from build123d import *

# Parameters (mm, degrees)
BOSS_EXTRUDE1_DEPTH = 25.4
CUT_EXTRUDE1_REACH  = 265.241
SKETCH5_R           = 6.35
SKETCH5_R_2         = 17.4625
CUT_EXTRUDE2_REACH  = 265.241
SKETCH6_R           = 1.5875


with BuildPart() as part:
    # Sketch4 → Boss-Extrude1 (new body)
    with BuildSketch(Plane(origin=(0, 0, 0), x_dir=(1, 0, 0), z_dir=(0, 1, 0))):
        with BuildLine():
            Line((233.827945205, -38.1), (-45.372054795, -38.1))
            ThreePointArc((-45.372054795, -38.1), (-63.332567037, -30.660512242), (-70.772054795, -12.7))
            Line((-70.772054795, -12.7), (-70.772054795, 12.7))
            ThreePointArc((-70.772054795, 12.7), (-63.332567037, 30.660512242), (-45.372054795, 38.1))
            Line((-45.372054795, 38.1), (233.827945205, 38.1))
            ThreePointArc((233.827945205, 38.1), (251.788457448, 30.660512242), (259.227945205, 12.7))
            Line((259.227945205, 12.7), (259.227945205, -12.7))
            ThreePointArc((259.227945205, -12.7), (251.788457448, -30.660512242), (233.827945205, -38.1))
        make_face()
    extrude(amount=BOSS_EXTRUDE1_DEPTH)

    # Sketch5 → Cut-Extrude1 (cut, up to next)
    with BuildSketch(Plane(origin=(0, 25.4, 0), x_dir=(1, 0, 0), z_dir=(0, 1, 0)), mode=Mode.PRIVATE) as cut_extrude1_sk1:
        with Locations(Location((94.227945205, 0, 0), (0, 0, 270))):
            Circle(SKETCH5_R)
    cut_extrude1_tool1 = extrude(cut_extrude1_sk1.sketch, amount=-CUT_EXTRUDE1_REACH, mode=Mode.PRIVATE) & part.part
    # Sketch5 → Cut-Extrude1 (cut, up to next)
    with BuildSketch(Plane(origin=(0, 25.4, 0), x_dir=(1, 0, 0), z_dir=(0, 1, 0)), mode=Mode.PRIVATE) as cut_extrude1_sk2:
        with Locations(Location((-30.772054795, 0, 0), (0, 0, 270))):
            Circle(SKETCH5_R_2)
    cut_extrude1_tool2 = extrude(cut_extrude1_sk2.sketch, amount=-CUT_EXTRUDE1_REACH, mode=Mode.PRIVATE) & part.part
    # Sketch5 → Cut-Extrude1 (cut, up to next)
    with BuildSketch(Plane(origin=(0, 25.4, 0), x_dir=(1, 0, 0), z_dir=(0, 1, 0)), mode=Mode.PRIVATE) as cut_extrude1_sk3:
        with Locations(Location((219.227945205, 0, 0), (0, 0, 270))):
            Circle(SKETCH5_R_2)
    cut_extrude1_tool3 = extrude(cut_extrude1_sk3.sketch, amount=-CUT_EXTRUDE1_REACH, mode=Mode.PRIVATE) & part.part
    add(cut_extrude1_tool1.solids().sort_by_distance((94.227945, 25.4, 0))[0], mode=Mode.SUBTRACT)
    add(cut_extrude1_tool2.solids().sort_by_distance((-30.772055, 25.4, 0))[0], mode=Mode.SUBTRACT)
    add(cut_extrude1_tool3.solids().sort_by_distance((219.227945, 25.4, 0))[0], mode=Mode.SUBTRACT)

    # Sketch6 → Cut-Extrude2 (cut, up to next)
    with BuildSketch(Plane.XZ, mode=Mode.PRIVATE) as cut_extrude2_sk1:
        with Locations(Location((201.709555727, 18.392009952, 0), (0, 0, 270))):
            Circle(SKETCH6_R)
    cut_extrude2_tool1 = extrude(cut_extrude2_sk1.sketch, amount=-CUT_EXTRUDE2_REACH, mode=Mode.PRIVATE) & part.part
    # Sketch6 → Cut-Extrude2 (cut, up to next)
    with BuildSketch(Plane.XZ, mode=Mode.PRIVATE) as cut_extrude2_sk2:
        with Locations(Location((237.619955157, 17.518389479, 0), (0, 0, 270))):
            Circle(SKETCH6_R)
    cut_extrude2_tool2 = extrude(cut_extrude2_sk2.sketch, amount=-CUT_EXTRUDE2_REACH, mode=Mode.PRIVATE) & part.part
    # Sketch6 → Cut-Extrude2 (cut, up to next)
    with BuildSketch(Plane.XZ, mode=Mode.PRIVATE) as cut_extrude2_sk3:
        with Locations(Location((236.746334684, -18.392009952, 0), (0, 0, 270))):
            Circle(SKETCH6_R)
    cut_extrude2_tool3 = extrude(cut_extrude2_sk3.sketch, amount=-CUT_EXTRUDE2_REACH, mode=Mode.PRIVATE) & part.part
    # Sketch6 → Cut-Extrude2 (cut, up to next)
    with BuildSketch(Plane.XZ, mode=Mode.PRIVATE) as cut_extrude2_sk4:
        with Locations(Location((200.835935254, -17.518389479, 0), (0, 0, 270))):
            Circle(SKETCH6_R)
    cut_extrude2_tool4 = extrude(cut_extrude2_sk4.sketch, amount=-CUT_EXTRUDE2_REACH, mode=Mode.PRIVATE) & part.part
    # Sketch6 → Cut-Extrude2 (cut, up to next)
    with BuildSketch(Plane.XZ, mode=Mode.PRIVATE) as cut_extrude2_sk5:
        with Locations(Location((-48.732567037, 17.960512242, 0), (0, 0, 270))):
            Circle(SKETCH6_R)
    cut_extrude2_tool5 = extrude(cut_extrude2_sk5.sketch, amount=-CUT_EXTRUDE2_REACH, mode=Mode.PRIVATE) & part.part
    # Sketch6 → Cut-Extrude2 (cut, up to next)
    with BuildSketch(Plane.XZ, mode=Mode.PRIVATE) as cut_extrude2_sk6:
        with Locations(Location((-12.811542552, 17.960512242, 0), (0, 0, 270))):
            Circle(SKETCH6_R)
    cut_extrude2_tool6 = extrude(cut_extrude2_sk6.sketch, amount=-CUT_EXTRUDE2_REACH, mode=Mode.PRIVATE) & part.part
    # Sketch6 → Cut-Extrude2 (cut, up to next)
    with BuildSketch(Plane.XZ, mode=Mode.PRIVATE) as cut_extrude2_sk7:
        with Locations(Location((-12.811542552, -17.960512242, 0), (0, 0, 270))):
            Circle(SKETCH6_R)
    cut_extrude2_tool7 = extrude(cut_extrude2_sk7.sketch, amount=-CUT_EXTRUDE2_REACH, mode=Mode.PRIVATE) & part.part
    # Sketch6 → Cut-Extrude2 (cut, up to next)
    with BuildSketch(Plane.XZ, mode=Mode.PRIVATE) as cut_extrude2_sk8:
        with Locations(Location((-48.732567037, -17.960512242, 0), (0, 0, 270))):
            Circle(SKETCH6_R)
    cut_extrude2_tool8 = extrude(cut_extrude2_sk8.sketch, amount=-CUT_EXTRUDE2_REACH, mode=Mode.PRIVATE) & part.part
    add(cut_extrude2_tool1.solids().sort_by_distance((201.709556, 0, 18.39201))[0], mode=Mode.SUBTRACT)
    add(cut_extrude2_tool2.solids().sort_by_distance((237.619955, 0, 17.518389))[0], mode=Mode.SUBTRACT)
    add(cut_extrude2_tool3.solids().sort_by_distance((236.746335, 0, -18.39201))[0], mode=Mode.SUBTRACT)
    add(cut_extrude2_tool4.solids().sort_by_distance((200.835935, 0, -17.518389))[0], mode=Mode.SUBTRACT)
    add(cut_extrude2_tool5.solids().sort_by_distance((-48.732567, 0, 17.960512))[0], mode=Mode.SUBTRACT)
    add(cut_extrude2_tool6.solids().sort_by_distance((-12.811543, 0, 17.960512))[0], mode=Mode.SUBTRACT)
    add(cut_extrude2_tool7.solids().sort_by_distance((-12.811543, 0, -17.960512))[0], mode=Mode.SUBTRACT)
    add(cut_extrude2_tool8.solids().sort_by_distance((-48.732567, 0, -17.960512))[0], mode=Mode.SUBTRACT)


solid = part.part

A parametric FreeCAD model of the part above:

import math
import FreeCAD as App
import Part
import Sketcher
Q = App.Units.Quantity

doc = App.newDocument("Part")
body = doc.addObject("PartDesign::Body", "Body")

sketch1 = doc.addObject("Sketcher::SketchObject", "Sketch")
body.addObject(sketch1)
sketch1.AttachmentSupport = (doc.XZ_Plane, [""])
sketch1.MapMode = "FlatFace"
sketch1.addGeometry([
    Part.LineSegment(App.Vector(-45, 38, 0), App.Vector(234, 38, 0)),
    Part.ArcOfCircle(Part.Circle(App.Vector(234, 13, 0), App.Vector(0, 0, 1), 25), math.radians(0), math.radians(90)),
    Part.LineSegment(App.Vector(259, 13, 0), App.Vector(259, -13, 0)),
    Part.ArcOfCircle(Part.Circle(App.Vector(234, -13, 0), App.Vector(0, 0, 1), 25), math.radians(-90), math.radians(0)),
    Part.LineSegment(App.Vector(234, -38, 0), App.Vector(-45, -38, 0)),
    Part.ArcOfCircle(Part.Circle(App.Vector(-45, -13, 0), App.Vector(0, 0, 1), 25), math.radians(180), math.radians(270)),
    Part.LineSegment(App.Vector(-71, -13, 0), App.Vector(-71, 13, 0)),
    Part.ArcOfCircle(Part.Circle(App.Vector(-45, 13, 0), App.Vector(0, 0, 1), 25), math.radians(90), math.radians(180)),
], False)
sketch1.addConstraint([
    Sketcher.Constraint("Tangent", 0, 2, 1, 2),
    Sketcher.Constraint("Tangent", 1, 1, 2, 1),
    Sketcher.Constraint("Tangent", 2, 2, 3, 2),
    Sketcher.Constraint("Tangent", 3, 1, 4, 1),
    Sketcher.Constraint("Tangent", 4, 2, 5, 2),
    Sketcher.Constraint("Tangent", 5, 1, 6, 1),
    Sketcher.Constraint("Tangent", 6, 2, 7, 2),
    Sketcher.Constraint("Tangent", 7, 1, 0, 1),
    Sketcher.Constraint("Horizontal", 0),
    Sketcher.Constraint("Vertical", 2),
    Sketcher.Constraint("Horizontal", 4),
    Sketcher.Constraint("Vertical", 6),
    Sketcher.Constraint("Equal", 1, 3),
    Sketcher.Constraint("Equal", 3, 5),
    Sketcher.Constraint("Equal", 5, 7),
    Sketcher.Constraint("Radius", 1, Q("1 in")),
    Sketcher.Constraint("DistanceY", 2, 2, 2, 1, Q("1 in")),
    Sketcher.Constraint("DistanceY", -1, 1, 1, 3, Q("0.5 in")),
    Sketcher.Constraint("DistanceX", 0, 1, 0, 2, 279.2),
    Sketcher.Constraint("DistanceX", -1, 1, 1, 3, 233.827945),
])
pad1 = doc.addObject("PartDesign::Pad", "Pad")
body.addObject(pad1)
pad1.Profile = sketch1
pad1.Length = Q("1 in")
pad1.Reversed = True

sketch2 = doc.addObject("Sketcher::SketchObject", "Sketch001")
body.addObject(sketch2)
sketch2.AttachmentSupport = (doc.XZ_Plane, [""])
sketch2.MapMode = "FlatFace"
sketch2.AttachmentOffset = App.Placement(App.Vector(0, 0, -1 * 25.4), App.Rotation())
sketch2.addGeometry(Part.Circle(App.Vector(94, 0, 0), App.Vector(0, 0, 1), 6), False)
sketch2.addConstraint([
    Sketcher.Constraint("PointOnObject", 0, 3, -1),
    Sketcher.Constraint("Diameter", 0, Q("0.5 in")),
    Sketcher.Constraint("DistanceX", -1, 1, 0, 3, 94.227945),
])
pocket1 = doc.addObject("PartDesign::Pocket", "Pocket")
body.addObject(pocket1)
pocket1.Profile = sketch2
pocket1.Type = "UpToFirst"
pocket1.Reversed = True

sketch3 = doc.addObject("Sketcher::SketchObject", "Sketch002")
body.addObject(sketch3)
sketch3.AttachmentSupport = (doc.XZ_Plane, [""])
sketch3.MapMode = "FlatFace"
sketch3.AttachmentOffset = App.Placement(App.Vector(0, 0, -1 * 25.4), App.Rotation())
sketch3.addGeometry(Part.Circle(App.Vector(-31, 0, 0), App.Vector(0, 0, 1), 17), False)
sketch3.addConstraint([
    Sketcher.Constraint("PointOnObject", 0, 3, -1),
    Sketcher.Constraint("Diameter", 0, Q("1.375 in")),
    Sketcher.Constraint("DistanceX", 0, 3, -1, 1, 30.772055),
])
pocket2 = doc.addObject("PartDesign::Pocket", "Pocket001")
body.addObject(pocket2)
pocket2.Profile = sketch3
pocket2.Type = "UpToFirst"
pocket2.Reversed = True

sketch4 = doc.addObject("Sketcher::SketchObject", "Sketch003")
body.addObject(sketch4)
sketch4.AttachmentSupport = (doc.XZ_Plane, [""])
sketch4.MapMode = "FlatFace"
sketch4.AttachmentOffset = App.Placement(App.Vector(0, 0, -1 * 25.4), App.Rotation())
sketch4.addGeometry(Part.Circle(App.Vector(219, 0, 0), App.Vector(0, 0, 1), 17), False)
sketch4.addConstraint([
    Sketcher.Constraint("PointOnObject", 0, 3, -1),
    Sketcher.Constraint("Diameter", 0, Q("1.375 in")),
    Sketcher.Constraint("DistanceX", -1, 1, 0, 3, 219.227945),
])
pocket3 = doc.addObject("PartDesign::Pocket", "Pocket002")
body.addObject(pocket3)
pocket3.Profile = sketch4
pocket3.Type = "UpToFirst"
pocket3.Reversed = True

sketch5 = doc.addObject("Sketcher::SketchObject", "Sketch004")
body.addObject(sketch5)
sketch5.AttachmentSupport = (doc.XZ_Plane, [""])
sketch5.MapMode = "FlatFace"
sketch5.addGeometry(Part.Circle(App.Vector(201.7, 18.4, 0), App.Vector(0, 0, 1), 1.6), False)
sketch5.addConstraint([
    Sketcher.Constraint("Diameter", 0, Q("0.125 in")),
    Sketcher.Constraint("DistanceY", -1, 1, 0, 3, 18.39201),
    Sketcher.Constraint("DistanceX", -1, 1, 0, 3, 201.709556),
])
pocket4 = doc.addObject("PartDesign::Pocket", "Pocket003")
body.addObject(pocket4)
pocket4.Profile = sketch5
pocket4.Type = "UpToFirst"

sketch6 = doc.addObject("Sketcher::SketchObject", "Sketch005")
body.addObject(sketch6)
sketch6.AttachmentSupport = (doc.XZ_Plane, [""])
sketch6.MapMode = "FlatFace"
sketch6.addGeometry(Part.Circle(App.Vector(237.6, 17.5, 0), App.Vector(0, 0, 1), 1.6), False)
sketch6.addConstraint([
    Sketcher.Constraint("Diameter", 0, Q("0.125 in")),
    Sketcher.Constraint("DistanceY", -1, 1, 0, 3, 17.518389),
    Sketcher.Constraint("DistanceX", -1, 1, 0, 3, 237.619955),
])
pocket5 = doc.addObject("PartDesign::Pocket", "Pocket004")
body.addObject(pocket5)
pocket5.Profile = sketch6
pocket5.Type = "UpToFirst"

sketch7 = doc.addObject("Sketcher::SketchObject", "Sketch006")
body.addObject(sketch7)
sketch7.AttachmentSupport = (doc.XZ_Plane, [""])
sketch7.MapMode = "FlatFace"
sketch7.addGeometry(Part.Circle(App.Vector(236.7, -18.4, 0), App.Vector(0, 0, 1), 1.6), False)
sketch7.addConstraint([
    Sketcher.Constraint("Diameter", 0, Q("0.125 in")),
    Sketcher.Constraint("DistanceY", 0, 3, -1, 1, 18.39201),
    Sketcher.Constraint("DistanceX", -1, 1, 0, 3, 236.746335),
])
pocket6 = doc.addObject("PartDesign::Pocket", "Pocket005")
body.addObject(pocket6)
pocket6.Profile = sketch7
pocket6.Type = "UpToFirst"

sketch8 = doc.addObject("Sketcher::SketchObject", "Sketch007")
body.addObject(sketch8)
sketch8.AttachmentSupport = (doc.XZ_Plane, [""])
sketch8.MapMode = "FlatFace"
sketch8.addGeometry(Part.Circle(App.Vector(200.8, -17.5, 0), App.Vector(0, 0, 1), 1.6), False)
sketch8.addConstraint([
    Sketcher.Constraint("Diameter", 0, Q("0.125 in")),
    Sketcher.Constraint("DistanceY", 0, 3, -1, 1, 17.518389),
    Sketcher.Constraint("DistanceX", -1, 1, 0, 3, 200.835935),
])
pocket7 = doc.addObject("PartDesign::Pocket", "Pocket006")
body.addObject(pocket7)
pocket7.Profile = sketch8
pocket7.Type = "UpToFirst"

sketch9 = doc.addObject("Sketcher::SketchObject", "Sketch008")
body.addObject(sketch9)
sketch9.AttachmentSupport = (doc.XZ_Plane, [""])
sketch9.MapMode = "FlatFace"
sketch9.addGeometry(Part.Circle(App.Vector(-48.7, 18, 0), App.Vector(0, 0, 1), 1.6), False)
sketch9.addConstraint([
    Sketcher.Constraint("Diameter", 0, Q("0.125 in")),
    Sketcher.Constraint("DistanceX", 0, 3, -1, 1, 48.732567),
    Sketcher.Constraint("DistanceY", -1, 1, 0, 3, 17.960512),
])
pocket8 = doc.addObject("PartDesign::Pocket", "Pocket007")
body.addObject(pocket8)
pocket8.Profile = sketch9
pocket8.Type = "UpToFirst"

sketch10 = doc.addObject("Sketcher::SketchObject", "Sketch009")
body.addObject(sketch10)
sketch10.AttachmentSupport = (doc.XZ_Plane, [""])
sketch10.MapMode = "FlatFace"
sketch10.addGeometry(Part.Circle(App.Vector(-12.8, 18, 0), App.Vector(0, 0, 1), 1.6), False)
sketch10.addConstraint([
    Sketcher.Constraint("Diameter", 0, Q("0.125 in")),
    Sketcher.Constraint("DistanceX", 0, 3, -1, 1, 12.811543),
    Sketcher.Constraint("DistanceY", -1, 1, 0, 3, 17.960512),
])
pocket9 = doc.addObject("PartDesign::Pocket", "Pocket008")
body.addObject(pocket9)
pocket9.Profile = sketch10
pocket9.Type = "UpToFirst"

sketch11 = doc.addObject("Sketcher::SketchObject", "Sketch010")
body.addObject(sketch11)
sketch11.AttachmentSupport = (doc.XZ_Plane, [""])
sketch11.MapMode = "FlatFace"
sketch11.addGeometry(Part.Circle(App.Vector(-12.8, -18, 0), App.Vector(0, 0, 1), 1.6), False)
sketch11.addConstraint([
    Sketcher.Constraint("Diameter", 0, Q("0.125 in")),
    Sketcher.Constraint("DistanceX", 0, 3, -1, 1, 12.811543),
    Sketcher.Constraint("DistanceY", 0, 3, -1, 1, 17.960512),
])
pocket10 = doc.addObject("PartDesign::Pocket", "Pocket009")
body.addObject(pocket10)
pocket10.Profile = sketch11
pocket10.Type = "UpToFirst"

sketch12 = doc.addObject("Sketcher::SketchObject", "Sketch011")
body.addObject(sketch12)
sketch12.AttachmentSupport = (doc.XZ_Plane, [""])
sketch12.MapMode = "FlatFace"
sketch12.addGeometry(Part.Circle(App.Vector(-48.7, -18, 0), App.Vector(0, 0, 1), 1.6), False)
sketch12.addConstraint([
    Sketcher.Constraint("Diameter", 0, Q("0.125 in")),
    Sketcher.Constraint("DistanceX", 0, 3, -1, 1, 48.732567),
    Sketcher.Constraint("DistanceY", 0, 3, -1, 1, 17.960512),
])
pocket11 = doc.addObject("PartDesign::Pocket", "Pocket010")
body.addObject(pocket11)
pocket11.Profile = sketch12
pocket11.Type = "UpToFirst"

doc.recompute()
